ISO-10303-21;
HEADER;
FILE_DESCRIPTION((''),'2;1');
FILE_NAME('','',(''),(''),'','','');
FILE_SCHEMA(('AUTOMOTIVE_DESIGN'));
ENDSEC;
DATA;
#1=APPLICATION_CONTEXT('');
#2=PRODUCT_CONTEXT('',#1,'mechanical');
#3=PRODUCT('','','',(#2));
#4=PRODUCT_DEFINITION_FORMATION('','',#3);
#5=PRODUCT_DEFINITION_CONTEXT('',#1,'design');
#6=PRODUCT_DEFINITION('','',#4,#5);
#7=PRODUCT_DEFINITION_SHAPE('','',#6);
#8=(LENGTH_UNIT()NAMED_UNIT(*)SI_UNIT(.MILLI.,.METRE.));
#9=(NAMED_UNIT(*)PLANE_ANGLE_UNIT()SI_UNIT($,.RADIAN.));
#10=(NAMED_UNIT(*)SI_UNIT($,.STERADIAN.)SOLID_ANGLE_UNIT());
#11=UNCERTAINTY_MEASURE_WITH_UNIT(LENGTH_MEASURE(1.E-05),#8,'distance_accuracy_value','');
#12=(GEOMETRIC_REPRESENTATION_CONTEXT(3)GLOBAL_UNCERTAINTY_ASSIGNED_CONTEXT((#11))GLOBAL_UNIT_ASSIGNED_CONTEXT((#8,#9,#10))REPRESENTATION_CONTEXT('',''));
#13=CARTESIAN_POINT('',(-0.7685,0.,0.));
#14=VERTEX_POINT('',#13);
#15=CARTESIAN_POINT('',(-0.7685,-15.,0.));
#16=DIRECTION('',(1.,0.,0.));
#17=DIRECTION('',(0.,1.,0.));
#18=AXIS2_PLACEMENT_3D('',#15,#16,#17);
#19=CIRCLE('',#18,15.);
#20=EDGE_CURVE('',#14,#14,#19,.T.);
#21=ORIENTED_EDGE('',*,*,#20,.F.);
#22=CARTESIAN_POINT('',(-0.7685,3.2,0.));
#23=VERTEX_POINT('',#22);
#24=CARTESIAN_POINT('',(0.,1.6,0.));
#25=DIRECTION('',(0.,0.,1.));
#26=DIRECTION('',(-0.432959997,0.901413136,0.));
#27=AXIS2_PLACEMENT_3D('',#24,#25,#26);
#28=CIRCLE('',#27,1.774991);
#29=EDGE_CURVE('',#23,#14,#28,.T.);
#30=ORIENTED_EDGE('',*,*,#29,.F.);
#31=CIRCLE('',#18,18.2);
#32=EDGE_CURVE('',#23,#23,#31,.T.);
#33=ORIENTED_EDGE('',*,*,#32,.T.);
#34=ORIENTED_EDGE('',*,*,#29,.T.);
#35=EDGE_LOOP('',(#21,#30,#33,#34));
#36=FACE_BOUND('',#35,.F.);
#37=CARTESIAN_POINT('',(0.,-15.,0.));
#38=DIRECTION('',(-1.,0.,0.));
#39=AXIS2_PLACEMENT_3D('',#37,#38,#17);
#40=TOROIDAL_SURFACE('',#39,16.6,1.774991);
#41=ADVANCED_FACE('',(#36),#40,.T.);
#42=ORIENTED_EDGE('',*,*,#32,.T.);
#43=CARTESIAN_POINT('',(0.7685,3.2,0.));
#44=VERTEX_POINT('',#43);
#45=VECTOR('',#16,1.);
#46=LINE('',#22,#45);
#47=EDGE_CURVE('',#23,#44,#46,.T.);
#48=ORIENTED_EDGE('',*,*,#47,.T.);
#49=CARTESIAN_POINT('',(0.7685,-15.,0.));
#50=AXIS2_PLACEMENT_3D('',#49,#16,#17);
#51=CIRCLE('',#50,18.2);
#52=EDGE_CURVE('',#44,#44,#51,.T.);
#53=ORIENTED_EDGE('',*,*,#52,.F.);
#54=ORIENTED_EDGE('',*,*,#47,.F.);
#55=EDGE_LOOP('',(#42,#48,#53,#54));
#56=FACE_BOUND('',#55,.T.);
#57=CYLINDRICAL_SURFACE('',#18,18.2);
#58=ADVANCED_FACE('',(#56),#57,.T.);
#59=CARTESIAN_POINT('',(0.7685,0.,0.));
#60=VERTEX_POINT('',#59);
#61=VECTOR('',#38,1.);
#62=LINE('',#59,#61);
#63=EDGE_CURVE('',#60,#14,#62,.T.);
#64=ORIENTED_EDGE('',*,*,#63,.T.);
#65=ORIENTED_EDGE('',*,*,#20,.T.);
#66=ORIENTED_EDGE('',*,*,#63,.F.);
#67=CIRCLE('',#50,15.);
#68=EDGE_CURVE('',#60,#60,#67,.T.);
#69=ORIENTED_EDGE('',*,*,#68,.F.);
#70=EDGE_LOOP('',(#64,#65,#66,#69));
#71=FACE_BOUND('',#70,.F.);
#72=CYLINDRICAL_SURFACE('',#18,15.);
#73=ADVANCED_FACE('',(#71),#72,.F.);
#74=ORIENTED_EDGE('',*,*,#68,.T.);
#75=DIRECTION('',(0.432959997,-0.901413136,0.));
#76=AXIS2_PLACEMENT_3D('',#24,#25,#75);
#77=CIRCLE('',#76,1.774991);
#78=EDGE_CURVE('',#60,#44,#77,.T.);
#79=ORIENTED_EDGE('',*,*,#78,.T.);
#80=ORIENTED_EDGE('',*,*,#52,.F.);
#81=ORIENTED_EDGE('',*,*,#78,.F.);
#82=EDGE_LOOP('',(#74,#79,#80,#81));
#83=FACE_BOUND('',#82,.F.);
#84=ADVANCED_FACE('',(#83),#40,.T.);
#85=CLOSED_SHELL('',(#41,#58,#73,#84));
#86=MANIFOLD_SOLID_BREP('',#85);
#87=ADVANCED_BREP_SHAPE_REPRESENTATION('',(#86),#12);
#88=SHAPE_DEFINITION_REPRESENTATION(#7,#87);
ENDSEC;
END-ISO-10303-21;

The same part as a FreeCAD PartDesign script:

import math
import FreeCAD as App
import Part
import Sketcher
Q = App.Units.Quantity

doc = App.newDocument("Part")
params = doc.addObject("Spreadsheet::Sheet", "Params")
for row, (alias, value) in enumerate([
    ("revolution_angle", "360 deg"),
], start=1):
    params.set(f"A{row}", alias)
    params.set(f"B{row}", "=" + value)
    params.setAlias(f"B{row}", alias)

body = doc.addObject("PartDesign::Body", "Body")

sketch1 = body.newObject("Sketcher::SketchObject", "Sketch")
sketch1.AttachmentSupport = (doc.getObject("XY_Plane"), [""])
sketch1.MapMode = "FlatFace"
sketch1.addGeometry([
    Part.ArcOfCircle(Part.Circle(App.Vector(0, 1.6, 0), App.Vector(0, 0, 1), 1.8), math.radians(116), math.radians(244)),
    Part.LineSegment(App.Vector(-0.8, 0, 0), App.Vector(0.8, 0, 0)),
    Part.ArcOfCircle(Part.Circle(App.Vector(0, 1.6, 0), App.Vector(0, 0, 1), 1.8), math.radians(-64), math.radians(64)),
    Part.LineSegment(App.Vector(0.8, 3.2, 0), App.Vector(-0.8, 3.2, 0)),
], False)
sketch1.addGeometry(Part.LineSegment(App.Vector(-0.8, -15, 0), App.Vector(0.8, -15, 0)), True)
sketch1.addConstraint([
    Sketcher.Constraint("Coincident", 0, 2, 1, 1),
    Sketcher.Constraint("Coincident", 1, 2, 2, 1),
    Sketcher.Constraint("Coincident", 2, 2, 3, 1),
    Sketcher.Constraint("Coincident", 3, 2, 0, 1),
    Sketcher.Constraint("Horizontal", 1),
    Sketcher.Constraint("Horizontal", 3),
    Sketcher.Constraint("Horizontal", 4),
    Sketcher.Constraint("Coincident", 2, 3, 0, 3),
    Sketcher.Constraint("Equal", 0, 2),
    Sketcher.Constraint("Symmetric", 0, 2, 1, 2, -1, 1),
    Sketcher.Constraint("Vertical", 1, 2, 2, 2),
    Sketcher.Constraint("Vertical", 3, 2, 4, 1),
    Sketcher.Constraint("Vertical", 2, 2, 4, 2),
    Sketcher.Constraint("Radius", 0, Q("1.775 mm")),
    Sketcher.Constraint("DistanceY", -1, 1, 0, 3, Q("1.6 mm")),
    Sketcher.Constraint("DistanceY", 4, 1, -1, 1, Q("15 mm")),
])
revolution = body.newObject("PartDesign::Revolution", "Revolution")
revolution.Profile = sketch1
revolution.ReferenceAxis = (sketch1, ["Axis0"])
revolution.setExpression("Angle", "Params.revolution_angle")

doc.recompute()
